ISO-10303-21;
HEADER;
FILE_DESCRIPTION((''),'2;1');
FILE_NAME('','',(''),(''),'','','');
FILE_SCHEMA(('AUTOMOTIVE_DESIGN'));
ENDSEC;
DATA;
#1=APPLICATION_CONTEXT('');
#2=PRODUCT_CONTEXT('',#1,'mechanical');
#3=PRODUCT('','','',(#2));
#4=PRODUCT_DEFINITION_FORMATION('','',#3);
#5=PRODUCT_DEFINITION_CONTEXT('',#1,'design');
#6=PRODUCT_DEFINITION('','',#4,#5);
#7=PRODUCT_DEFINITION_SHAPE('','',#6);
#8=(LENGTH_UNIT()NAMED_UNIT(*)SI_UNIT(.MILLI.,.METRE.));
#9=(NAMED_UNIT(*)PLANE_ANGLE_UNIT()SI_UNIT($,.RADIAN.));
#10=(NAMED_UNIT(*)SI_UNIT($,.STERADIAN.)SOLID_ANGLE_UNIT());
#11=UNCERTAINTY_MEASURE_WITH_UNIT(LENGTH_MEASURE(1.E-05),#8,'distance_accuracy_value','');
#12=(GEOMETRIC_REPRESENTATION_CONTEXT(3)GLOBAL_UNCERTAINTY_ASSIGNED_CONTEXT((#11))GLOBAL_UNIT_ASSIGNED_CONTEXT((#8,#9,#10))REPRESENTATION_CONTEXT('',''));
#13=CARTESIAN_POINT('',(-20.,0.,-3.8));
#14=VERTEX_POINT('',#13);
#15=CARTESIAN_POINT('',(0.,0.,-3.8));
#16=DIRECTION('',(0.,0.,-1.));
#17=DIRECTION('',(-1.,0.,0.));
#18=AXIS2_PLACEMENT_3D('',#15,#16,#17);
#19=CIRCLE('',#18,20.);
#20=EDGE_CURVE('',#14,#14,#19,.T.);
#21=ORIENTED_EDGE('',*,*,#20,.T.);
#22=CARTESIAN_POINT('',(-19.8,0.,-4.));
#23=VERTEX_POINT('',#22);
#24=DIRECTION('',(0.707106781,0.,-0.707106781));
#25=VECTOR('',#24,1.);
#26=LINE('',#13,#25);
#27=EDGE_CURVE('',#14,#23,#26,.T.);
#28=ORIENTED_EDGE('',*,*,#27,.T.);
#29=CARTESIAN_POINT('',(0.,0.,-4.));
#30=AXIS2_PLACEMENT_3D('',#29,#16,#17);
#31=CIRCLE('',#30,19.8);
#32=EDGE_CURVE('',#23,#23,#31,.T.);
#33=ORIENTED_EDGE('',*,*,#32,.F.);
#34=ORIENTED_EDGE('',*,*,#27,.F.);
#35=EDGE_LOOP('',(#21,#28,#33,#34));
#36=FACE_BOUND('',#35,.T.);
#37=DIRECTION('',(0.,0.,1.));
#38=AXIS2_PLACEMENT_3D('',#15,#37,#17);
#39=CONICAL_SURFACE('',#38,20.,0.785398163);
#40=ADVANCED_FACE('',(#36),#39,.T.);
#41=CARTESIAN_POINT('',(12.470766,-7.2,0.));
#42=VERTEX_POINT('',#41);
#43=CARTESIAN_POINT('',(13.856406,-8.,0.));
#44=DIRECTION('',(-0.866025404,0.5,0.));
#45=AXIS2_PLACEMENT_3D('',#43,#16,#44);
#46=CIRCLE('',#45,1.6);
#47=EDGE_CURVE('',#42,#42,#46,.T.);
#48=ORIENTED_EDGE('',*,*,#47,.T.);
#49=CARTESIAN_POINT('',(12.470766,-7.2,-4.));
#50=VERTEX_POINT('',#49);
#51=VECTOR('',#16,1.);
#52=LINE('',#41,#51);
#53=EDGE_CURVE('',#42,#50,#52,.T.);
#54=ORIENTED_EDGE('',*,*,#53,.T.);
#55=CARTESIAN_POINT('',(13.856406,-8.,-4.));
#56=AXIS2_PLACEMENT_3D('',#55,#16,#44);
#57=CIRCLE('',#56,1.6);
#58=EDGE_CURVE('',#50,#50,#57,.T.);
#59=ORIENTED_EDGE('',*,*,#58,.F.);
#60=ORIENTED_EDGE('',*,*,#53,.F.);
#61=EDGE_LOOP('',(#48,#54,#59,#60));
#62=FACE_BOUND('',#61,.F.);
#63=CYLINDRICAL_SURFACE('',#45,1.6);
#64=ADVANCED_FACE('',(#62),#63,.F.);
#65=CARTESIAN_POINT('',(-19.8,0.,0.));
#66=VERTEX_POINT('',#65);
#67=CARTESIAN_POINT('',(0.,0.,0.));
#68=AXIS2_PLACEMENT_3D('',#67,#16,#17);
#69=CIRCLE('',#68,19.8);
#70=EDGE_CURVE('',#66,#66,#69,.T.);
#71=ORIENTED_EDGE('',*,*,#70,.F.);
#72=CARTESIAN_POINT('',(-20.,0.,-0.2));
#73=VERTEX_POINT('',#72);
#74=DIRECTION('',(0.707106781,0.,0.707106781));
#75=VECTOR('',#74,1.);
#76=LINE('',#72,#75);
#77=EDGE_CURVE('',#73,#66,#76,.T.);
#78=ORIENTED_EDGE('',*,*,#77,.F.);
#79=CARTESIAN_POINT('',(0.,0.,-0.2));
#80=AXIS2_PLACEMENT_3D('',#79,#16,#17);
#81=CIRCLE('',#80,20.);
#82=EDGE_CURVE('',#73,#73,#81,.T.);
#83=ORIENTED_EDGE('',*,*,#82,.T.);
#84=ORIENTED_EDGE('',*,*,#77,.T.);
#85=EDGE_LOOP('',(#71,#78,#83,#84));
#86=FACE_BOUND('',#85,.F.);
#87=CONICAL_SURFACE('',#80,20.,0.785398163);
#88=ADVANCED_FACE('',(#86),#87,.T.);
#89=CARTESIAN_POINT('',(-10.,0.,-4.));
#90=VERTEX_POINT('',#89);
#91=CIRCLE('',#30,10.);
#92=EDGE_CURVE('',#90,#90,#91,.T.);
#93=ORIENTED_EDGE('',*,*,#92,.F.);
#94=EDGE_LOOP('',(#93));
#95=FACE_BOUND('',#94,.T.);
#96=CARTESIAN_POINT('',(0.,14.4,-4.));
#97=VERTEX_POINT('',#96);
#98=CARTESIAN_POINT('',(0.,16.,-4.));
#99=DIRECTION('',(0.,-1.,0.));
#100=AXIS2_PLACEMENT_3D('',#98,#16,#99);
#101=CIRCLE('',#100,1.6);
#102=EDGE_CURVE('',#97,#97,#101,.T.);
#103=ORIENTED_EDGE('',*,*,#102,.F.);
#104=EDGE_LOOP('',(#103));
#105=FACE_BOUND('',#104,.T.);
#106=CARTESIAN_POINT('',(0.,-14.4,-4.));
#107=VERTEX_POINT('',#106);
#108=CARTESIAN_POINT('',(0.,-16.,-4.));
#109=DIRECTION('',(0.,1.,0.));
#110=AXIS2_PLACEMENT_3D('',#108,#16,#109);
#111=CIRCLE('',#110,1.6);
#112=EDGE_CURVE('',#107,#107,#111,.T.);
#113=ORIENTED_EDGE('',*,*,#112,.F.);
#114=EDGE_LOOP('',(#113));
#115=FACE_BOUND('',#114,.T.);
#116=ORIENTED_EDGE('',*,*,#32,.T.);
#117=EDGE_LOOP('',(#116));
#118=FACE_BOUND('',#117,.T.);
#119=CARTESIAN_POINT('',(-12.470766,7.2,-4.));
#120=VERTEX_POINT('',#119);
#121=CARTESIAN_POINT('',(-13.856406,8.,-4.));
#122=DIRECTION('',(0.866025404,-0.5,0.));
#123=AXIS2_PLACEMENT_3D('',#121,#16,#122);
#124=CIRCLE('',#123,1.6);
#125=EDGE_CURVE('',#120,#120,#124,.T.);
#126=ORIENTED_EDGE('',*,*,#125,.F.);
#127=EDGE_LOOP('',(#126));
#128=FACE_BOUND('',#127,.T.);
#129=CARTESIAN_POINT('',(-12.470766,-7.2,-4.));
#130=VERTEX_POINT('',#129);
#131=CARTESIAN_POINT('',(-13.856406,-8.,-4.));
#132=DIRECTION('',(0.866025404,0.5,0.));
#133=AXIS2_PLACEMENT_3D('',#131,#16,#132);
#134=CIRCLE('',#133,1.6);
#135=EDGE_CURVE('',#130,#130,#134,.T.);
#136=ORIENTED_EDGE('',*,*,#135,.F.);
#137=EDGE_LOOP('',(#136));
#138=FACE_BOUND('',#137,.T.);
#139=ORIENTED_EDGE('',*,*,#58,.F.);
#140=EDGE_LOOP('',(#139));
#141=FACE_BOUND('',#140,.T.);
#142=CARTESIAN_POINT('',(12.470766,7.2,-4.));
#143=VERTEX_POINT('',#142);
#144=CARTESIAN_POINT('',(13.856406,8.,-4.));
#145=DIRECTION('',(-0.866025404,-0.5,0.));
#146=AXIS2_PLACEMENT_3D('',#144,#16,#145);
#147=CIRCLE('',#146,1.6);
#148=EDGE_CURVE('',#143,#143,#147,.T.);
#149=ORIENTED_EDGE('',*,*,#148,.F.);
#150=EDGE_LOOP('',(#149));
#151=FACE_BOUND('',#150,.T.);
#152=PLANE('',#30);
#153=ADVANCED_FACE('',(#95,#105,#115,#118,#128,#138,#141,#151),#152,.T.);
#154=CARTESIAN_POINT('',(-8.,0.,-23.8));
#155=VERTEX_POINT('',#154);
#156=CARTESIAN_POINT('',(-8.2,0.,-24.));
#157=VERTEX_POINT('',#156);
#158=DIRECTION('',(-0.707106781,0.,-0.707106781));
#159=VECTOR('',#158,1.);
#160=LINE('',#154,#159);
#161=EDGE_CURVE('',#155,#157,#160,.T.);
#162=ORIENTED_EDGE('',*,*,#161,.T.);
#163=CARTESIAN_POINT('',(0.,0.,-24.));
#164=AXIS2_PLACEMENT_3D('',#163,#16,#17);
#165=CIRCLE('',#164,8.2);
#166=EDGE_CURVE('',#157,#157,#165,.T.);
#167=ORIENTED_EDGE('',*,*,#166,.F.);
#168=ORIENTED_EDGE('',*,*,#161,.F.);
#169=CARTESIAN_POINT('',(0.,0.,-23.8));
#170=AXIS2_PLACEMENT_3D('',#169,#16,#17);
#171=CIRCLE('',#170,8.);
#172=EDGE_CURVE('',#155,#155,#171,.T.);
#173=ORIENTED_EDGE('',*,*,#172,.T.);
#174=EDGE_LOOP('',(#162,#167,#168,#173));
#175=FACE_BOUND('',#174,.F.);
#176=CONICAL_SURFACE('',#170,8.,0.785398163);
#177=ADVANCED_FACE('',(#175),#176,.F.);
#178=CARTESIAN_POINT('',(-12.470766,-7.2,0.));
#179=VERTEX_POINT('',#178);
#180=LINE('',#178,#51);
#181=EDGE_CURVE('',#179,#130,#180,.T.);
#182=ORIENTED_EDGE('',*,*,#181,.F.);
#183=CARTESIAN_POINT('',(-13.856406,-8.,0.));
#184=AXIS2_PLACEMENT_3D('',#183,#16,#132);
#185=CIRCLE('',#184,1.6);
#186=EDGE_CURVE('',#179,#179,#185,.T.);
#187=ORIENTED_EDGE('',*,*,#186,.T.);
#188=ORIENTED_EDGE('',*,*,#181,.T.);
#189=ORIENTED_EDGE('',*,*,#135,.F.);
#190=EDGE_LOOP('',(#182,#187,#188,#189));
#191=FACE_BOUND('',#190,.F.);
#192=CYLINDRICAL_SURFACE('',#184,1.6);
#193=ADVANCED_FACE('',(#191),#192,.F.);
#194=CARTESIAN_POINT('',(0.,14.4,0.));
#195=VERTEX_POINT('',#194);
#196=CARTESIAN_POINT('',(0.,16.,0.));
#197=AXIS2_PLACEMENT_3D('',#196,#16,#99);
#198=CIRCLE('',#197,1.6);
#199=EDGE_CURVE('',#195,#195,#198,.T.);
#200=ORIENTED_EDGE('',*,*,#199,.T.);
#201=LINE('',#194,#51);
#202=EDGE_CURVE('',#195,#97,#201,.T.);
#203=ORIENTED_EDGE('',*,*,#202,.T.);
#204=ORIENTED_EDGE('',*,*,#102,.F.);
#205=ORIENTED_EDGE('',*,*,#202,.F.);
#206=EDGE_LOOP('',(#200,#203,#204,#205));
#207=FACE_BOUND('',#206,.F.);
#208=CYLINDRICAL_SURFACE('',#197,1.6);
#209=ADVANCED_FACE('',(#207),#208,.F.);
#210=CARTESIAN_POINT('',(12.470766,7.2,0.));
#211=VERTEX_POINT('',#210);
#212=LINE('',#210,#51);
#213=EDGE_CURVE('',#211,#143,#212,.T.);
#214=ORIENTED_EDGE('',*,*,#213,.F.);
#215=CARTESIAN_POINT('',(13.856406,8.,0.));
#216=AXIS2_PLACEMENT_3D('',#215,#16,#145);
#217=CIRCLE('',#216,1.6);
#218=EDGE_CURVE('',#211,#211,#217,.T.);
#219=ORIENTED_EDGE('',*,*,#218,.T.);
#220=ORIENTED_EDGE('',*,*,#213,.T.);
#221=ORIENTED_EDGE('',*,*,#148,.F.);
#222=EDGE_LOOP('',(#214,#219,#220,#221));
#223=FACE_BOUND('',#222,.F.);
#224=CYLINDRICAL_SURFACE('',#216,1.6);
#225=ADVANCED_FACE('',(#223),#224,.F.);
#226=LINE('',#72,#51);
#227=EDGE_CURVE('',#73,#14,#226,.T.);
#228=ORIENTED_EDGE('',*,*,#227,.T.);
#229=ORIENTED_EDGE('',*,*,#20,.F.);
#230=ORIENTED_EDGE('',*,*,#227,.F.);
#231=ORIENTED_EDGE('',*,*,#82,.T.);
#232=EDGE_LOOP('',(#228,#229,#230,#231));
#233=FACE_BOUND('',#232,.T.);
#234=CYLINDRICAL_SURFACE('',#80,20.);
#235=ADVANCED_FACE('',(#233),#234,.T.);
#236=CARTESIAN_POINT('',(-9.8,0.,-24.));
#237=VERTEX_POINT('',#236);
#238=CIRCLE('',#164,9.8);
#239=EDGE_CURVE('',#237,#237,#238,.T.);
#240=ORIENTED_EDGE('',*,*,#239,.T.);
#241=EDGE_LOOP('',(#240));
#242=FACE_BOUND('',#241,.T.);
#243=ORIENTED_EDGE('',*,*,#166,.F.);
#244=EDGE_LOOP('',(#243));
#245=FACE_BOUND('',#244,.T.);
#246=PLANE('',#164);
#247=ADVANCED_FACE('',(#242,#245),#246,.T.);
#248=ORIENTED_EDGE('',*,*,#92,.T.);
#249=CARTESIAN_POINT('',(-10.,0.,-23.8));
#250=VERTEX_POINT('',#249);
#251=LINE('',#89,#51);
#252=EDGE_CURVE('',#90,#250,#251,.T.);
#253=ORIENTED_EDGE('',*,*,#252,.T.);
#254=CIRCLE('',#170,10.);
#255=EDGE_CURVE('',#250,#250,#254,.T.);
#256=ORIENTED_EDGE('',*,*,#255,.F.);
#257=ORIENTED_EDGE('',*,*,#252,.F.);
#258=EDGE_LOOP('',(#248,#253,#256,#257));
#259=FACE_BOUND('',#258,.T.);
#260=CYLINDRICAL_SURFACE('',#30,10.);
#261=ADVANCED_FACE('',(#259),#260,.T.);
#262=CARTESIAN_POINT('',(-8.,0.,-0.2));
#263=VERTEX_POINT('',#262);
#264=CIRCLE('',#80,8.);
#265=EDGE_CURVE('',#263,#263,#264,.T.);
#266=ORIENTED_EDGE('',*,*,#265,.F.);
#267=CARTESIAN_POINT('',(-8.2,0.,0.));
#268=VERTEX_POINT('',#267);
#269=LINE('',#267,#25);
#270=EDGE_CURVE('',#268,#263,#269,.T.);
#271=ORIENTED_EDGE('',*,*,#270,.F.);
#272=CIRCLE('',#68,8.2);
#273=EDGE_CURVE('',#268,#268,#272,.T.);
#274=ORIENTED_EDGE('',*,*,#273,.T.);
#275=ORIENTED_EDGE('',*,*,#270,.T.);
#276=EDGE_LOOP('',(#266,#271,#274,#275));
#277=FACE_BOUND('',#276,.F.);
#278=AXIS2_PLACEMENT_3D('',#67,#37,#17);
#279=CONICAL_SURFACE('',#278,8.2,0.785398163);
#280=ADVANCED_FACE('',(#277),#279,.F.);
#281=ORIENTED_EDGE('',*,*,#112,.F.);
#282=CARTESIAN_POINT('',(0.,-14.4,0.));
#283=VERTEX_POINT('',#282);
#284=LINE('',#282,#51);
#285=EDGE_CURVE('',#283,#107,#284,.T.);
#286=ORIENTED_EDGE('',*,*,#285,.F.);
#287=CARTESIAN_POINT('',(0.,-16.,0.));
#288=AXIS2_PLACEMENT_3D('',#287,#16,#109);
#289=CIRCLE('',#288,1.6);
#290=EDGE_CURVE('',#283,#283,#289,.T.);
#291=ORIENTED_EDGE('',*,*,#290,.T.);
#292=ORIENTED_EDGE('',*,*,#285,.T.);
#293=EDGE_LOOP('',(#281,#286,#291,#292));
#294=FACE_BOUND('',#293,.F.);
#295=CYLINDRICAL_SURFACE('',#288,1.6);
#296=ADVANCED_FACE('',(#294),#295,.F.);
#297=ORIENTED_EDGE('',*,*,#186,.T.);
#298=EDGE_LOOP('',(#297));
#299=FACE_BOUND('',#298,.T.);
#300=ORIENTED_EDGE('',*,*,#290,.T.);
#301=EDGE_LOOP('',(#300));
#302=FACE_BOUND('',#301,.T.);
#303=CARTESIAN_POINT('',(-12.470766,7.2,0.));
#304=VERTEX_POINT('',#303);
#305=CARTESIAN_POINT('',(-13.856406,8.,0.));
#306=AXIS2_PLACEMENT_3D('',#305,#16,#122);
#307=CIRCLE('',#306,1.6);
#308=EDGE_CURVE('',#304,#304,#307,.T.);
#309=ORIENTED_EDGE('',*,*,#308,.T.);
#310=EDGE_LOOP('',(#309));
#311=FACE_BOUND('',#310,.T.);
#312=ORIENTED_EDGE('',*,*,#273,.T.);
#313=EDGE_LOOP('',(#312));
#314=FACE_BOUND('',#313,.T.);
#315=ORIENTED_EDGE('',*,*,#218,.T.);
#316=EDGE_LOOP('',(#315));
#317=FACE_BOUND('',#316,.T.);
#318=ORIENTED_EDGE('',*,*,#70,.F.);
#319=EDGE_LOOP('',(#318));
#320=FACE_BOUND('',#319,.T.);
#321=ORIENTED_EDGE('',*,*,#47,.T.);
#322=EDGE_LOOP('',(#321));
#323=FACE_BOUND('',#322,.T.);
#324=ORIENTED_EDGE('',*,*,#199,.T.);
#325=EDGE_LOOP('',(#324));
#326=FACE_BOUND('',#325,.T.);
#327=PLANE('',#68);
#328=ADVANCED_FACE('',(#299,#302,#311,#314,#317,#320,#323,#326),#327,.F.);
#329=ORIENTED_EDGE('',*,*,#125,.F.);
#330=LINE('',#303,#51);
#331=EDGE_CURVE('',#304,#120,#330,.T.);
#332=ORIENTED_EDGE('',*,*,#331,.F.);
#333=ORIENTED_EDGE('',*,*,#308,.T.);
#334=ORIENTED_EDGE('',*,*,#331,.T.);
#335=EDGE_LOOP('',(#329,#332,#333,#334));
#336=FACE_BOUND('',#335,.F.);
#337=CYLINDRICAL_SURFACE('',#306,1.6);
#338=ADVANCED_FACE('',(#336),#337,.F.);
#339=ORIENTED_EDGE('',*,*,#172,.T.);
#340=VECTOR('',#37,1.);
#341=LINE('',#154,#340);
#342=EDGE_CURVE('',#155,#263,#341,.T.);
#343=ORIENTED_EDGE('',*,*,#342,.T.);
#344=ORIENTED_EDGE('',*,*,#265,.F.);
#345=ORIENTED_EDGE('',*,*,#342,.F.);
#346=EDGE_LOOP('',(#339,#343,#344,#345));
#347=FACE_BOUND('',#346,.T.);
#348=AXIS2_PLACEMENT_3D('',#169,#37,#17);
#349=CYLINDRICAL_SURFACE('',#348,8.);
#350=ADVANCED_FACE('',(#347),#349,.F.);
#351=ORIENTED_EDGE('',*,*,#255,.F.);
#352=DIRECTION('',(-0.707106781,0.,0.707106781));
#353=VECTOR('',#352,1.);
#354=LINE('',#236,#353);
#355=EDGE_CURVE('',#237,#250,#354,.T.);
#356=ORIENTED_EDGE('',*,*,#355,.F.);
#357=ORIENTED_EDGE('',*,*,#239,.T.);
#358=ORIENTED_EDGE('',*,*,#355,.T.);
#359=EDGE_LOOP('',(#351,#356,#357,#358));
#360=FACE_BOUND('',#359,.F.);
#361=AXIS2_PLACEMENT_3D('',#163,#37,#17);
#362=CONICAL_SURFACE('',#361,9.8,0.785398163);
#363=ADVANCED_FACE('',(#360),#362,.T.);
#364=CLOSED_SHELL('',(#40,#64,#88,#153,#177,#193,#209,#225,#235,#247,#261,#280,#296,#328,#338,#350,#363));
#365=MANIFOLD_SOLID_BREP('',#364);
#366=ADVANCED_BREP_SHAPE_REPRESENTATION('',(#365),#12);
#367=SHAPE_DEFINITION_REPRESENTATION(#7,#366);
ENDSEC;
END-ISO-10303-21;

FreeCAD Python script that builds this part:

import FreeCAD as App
import Part
import Sketcher
Q = App.Units.Quantity


def add_polygon(sketch, points):
    """Adds a closed chain of lines whose ends are joined by coincident constraints."""
    first, n = sketch.GeometryCount, len(points)
    for a, b in zip(points, points[1:] + points[:1]):
        sketch.addGeometry(Part.LineSegment(App.Vector(*a, 0), App.Vector(*b, 0)), False)
    for i in range(n):
        sketch.addConstraint(Sketcher.Constraint("Coincident", first + i, 2, first + (i + 1) % n, 1))

doc = App.newDocument("Part")
body = doc.addObject("PartDesign::Body", "Body")

# Sketch on XZ plane
sketch1 = body.newObject("Sketcher::SketchObject", "Sketch")
sketch1.AttachmentSupport = (doc.getObject("XZ_Plane"), [""])
sketch1.MapMode = "FlatFace"
add_polygon(sketch1, [(-19.8, 0), (-8.2, 0), (-8, -0.2), (-8, -23.8), (-8.2, -24), (-9.8, -24), (-10, -23.8), (-10, -4), (-19.8, -4), (-20, -3.8), (-20, -0.2)])  # lines 0-10
sketch1.addConstraint([
    Sketcher.Constraint("Horizontal", 0),
    Sketcher.Constraint("Vertical", 2),
    Sketcher.Constraint("Horizontal", 4),
    Sketcher.Constraint("Vertical", 6),
    Sketcher.Constraint("Horizontal", 7),
    Sketcher.Constraint("Vertical", 9),
    Sketcher.Constraint("PointOnObject", 0, 2, -1),
    Sketcher.Constraint("Perpendicular", 1, 3),
    Sketcher.Constraint("Perpendicular", 3, 5),
    Sketcher.Constraint("Parallel", 5, 8),
    Sketcher.Constraint("Perpendicular", 8, 10),
    Sketcher.Constraint("Horizontal", 2, 2, 5, 2),
    Sketcher.Constraint("Horizontal", 1, 2, 9, 2),
    Sketcher.Constraint("Vertical", 0, 2, 3, 2),
    Sketcher.Constraint("Vertical", 7, 2, 10, 2),
    Sketcher.Constraint("Equal", 1, 3),
    Sketcher.Constraint("DistanceX", 5, 2, -1, 1, Q("10 mm")),
    Sketcher.Constraint("DistanceY", 6, 2, -1, 1, Q("4 mm")),
    Sketcher.Constraint("DistanceX", 8, 2, -1, 1, Q("20 mm")),
    Sketcher.Constraint("DistanceX", 5, 2, 2, 2, Q("2 mm")),
    Sketcher.Constraint("DistanceY", 4, 2, 6, 2, Q("20 mm")),
    Sketcher.Constraint("DistanceY", 1, 2, -1, 1, Q("0.2 mm")),
])
revolution = body.newObject("PartDesign::Revolution", "Revolution")
revolution.Profile = sketch1
revolution.ReferenceAxis = (sketch1, ["V_Axis"])
revolution.Angle = 360

# Sketch on XY plane
sketch2 = body.newObject("Sketcher::SketchObject", "Sketch001")
sketch2.AttachmentSupport = (doc.getObject("XY_Plane"), [""])
sketch2.MapMode = "FlatFace"
sketch2.addGeometry(Part.Circle(App.Vector(0, 16, 0), App.Vector(0, 0, 1), 1.6), False)
sketch2.addConstraint([
    Sketcher.Constraint("PointOnObject", 0, 3, -2),
    Sketcher.Constraint("Diameter", 0, Q("3.2 mm")),
    Sketcher.Constraint("DistanceY", -1, 1, 0, 3, Q("16 mm")),
])
doc.recompute()
hole = body.newObject("PartDesign::Hole", "Hole")
hole.Profile = sketch2
hole.ThreadType = "None"
hole.Diameter = 3.2
hole.DepthType = "ThroughAll"
doc.recompute()

polarpattern = body.newObject("PartDesign::PolarPattern", "PolarPattern")
polarpattern.Originals = [hole]
polarpattern.Axis = (doc.getObject("Z_Axis"), [""])
polarpattern.Angle = 360
polarpattern.Occurrences = 6
body.Tip = polarpattern

doc.recompute()
